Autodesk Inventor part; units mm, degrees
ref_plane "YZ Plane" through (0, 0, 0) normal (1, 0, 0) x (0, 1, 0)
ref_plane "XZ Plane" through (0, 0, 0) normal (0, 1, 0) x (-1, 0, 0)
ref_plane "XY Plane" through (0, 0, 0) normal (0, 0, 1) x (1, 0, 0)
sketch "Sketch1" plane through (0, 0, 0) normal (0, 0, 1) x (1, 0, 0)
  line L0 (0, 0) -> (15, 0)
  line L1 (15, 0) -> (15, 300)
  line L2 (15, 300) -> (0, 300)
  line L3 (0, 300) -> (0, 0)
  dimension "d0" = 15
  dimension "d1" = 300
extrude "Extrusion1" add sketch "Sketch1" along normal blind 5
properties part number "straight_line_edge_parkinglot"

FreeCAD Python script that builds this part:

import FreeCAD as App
import Part
import Sketcher
Q = App.Units.Quantity


def add_polygon(sketch, points):
    """Adds a closed chain of lines whose ends are joined by coincident constraints."""
    first, n = sketch.GeometryCount, len(points)
    for a, b in zip(points, points[1:] + points[:1]):
        sketch.addGeometry(Part.LineSegment(App.Vector(*a, 0), App.Vector(*b, 0)), False)
    for i in range(n):
        sketch.addConstraint(Sketcher.Constraint("Coincident", first + i, 2, first + (i + 1) % n, 1))

doc = App.newDocument("Part")
body = doc.addObject("PartDesign::Body", "Body")

# Sketch on XY plane
sketch1 = doc.addObject("Sketcher::SketchObject", "Sketch")
body.addObject(sketch1)
sketch1.AttachmentSupport = (doc.XY_Plane, [""])
sketch1.MapMode = "FlatFace"
add_polygon(sketch1, [(0, 300), (0, 0), (15, 0), (15, 300)])  # lines 0-3
sketch1.addConstraint([
    Sketcher.Constraint("Vertical", 0),
    Sketcher.Constraint("Horizontal", 1),
    Sketcher.Constraint("Vertical", 2),
    Sketcher.Constraint("Horizontal", 3),
    Sketcher.Constraint("Coincident", 0, 2, -1, 1),
    Sketcher.Constraint("DistanceX", 1, 1, 1, 2, Q("15 mm")),
    Sketcher.Constraint("DistanceY", 0, 2, 0, 1, Q("300 mm")),
])
pad1 = doc.addObject("PartDesign::Pad", "Pad")
body.addObject(pad1)
pad1.Profile = sketch1
pad1.Length = 5

doc.recompute()
